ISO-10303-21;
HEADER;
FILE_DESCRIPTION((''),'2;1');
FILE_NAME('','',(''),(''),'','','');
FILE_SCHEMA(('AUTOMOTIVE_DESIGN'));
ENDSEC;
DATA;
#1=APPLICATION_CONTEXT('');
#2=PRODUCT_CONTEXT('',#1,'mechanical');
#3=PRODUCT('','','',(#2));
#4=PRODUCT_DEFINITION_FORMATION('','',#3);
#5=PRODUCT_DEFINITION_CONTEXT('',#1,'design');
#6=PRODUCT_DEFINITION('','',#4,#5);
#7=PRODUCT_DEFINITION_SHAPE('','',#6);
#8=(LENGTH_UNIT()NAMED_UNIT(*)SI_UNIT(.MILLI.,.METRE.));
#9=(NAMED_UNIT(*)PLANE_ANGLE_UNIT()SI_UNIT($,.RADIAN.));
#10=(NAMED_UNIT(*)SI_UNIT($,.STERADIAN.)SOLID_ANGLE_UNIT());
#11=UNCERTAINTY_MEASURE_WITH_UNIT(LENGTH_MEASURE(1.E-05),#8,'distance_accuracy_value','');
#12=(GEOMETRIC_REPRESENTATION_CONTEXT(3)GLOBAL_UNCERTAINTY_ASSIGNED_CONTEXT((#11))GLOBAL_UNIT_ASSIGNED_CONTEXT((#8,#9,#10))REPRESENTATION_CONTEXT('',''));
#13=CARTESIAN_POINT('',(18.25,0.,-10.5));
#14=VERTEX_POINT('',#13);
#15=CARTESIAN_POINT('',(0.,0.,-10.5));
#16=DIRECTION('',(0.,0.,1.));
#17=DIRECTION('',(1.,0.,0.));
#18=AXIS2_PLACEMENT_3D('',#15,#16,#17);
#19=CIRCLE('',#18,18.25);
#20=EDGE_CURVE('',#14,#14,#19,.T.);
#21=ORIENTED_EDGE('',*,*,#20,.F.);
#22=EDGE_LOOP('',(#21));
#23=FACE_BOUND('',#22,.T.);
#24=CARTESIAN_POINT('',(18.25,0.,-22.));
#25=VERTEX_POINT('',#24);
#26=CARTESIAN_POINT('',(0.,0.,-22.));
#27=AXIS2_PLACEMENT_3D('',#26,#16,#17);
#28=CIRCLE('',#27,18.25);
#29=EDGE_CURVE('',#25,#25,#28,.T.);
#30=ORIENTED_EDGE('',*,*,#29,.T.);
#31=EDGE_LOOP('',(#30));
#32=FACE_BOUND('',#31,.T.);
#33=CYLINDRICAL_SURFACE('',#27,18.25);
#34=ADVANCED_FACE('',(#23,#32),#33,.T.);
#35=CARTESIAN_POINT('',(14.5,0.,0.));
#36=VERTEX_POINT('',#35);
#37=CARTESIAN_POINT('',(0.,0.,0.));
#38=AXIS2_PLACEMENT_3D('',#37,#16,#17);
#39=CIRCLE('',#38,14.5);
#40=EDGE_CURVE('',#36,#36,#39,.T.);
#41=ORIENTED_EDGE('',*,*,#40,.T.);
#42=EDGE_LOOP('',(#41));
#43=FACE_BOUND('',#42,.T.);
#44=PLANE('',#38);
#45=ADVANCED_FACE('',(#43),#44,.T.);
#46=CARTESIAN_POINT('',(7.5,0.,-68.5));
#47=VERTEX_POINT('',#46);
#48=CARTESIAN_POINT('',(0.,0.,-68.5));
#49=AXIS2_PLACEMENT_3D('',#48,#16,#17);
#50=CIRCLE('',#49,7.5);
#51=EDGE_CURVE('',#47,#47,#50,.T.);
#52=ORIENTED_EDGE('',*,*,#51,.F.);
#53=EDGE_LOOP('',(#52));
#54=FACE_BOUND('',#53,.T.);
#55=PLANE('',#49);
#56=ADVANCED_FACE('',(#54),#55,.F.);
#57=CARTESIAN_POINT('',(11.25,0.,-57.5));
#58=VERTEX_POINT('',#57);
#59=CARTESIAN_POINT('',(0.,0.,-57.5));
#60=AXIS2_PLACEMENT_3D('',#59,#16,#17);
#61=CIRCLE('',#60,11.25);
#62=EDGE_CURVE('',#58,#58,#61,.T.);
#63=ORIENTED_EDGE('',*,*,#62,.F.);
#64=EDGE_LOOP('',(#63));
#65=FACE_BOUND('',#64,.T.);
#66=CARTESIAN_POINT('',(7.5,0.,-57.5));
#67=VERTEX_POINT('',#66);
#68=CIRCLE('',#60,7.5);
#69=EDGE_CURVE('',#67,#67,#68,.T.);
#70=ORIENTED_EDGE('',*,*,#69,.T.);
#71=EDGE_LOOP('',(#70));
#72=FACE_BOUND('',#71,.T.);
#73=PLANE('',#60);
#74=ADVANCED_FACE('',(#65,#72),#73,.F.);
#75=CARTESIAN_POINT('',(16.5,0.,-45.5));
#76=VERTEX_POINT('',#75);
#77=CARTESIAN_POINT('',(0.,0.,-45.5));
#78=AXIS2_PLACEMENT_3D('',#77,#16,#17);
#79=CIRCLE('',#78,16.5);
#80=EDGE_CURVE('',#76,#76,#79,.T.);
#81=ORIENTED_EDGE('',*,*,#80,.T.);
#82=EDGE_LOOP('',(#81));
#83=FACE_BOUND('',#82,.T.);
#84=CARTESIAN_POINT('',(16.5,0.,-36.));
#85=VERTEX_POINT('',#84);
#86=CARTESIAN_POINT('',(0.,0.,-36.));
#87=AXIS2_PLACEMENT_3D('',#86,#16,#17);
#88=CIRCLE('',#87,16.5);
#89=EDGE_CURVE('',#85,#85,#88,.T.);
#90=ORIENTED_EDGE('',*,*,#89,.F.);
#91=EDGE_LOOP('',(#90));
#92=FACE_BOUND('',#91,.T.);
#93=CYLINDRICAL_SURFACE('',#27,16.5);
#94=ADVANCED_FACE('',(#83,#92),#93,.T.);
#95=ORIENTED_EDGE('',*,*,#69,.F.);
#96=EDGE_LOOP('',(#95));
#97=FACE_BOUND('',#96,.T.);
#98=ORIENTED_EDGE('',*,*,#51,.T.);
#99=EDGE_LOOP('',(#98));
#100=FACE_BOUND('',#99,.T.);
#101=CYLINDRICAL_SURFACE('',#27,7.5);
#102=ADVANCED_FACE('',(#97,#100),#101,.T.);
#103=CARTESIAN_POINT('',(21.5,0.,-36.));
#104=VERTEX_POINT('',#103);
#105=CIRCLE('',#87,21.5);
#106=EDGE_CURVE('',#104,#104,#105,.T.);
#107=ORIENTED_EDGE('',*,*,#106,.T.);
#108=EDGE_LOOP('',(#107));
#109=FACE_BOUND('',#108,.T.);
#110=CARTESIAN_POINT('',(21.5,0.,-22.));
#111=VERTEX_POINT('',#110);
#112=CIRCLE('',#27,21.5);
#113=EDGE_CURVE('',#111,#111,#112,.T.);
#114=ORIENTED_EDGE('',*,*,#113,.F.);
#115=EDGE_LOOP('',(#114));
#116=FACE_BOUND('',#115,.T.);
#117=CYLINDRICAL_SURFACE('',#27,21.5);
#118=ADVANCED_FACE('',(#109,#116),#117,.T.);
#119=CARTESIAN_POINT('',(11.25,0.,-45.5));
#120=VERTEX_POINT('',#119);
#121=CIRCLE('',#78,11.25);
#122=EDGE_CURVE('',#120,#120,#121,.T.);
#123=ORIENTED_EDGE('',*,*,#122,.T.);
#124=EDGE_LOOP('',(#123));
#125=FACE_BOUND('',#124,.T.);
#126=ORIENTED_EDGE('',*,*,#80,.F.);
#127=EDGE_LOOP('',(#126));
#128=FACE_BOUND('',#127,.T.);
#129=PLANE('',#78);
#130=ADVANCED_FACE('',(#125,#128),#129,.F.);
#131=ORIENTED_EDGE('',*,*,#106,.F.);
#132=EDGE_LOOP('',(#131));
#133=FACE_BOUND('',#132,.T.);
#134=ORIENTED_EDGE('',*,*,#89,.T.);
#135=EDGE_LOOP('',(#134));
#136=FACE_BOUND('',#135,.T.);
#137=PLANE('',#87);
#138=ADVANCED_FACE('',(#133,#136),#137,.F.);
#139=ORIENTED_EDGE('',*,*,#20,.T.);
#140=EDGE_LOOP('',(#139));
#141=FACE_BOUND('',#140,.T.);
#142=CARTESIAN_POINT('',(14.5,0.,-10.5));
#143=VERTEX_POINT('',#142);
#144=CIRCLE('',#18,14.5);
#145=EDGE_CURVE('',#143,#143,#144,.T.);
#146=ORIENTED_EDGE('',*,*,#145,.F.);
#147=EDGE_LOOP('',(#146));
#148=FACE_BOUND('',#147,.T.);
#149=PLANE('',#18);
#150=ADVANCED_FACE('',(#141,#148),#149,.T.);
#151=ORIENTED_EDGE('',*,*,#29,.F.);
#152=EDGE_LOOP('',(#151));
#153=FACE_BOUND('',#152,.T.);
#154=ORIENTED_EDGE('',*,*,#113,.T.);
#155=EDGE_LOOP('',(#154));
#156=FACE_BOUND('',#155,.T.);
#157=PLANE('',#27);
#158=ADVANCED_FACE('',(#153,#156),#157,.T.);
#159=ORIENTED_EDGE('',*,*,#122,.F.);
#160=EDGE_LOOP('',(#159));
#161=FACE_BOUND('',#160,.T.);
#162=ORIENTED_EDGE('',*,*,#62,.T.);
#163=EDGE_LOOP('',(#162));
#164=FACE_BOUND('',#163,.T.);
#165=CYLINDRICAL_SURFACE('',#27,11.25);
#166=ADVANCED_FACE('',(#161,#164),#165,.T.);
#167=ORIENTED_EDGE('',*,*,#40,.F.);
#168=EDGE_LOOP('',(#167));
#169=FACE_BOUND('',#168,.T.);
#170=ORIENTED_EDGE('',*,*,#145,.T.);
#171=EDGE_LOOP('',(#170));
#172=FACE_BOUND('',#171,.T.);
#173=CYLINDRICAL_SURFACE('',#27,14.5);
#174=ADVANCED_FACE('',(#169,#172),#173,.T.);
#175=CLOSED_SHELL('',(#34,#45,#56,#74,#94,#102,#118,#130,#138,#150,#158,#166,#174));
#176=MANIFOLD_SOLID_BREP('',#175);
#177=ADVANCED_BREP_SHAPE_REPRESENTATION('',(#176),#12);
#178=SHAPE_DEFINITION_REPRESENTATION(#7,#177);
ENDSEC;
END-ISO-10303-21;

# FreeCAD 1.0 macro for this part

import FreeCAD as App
import Part
import Sketcher
from FreeCAD import Vector


def add_polygon(sketch, points):
    """Adds a closed chain of lines whose ends are joined by coincident constraints."""
    first, n = sketch.GeometryCount, len(points)
    for a, b in zip(points, points[1:] + points[:1]):
        sketch.addGeometry(Part.LineSegment(App.Vector(*a, 0), App.Vector(*b, 0)), False)
    for i in range(n):
        sketch.addConstraint(Sketcher.Constraint("Coincident", first + i, 2, first + (i + 1) % n, 1))

doc = App.newDocument("Part")
body = doc.addObject("PartDesign::Body", "Body")

sketch1 = body.newObject("Sketcher::SketchObject", "Sketch")
sketch1.AttachmentSupport = (doc.getObject("YZ_Plane"), [""])
sketch1.MapMode = "FlatFace"
add_polygon(sketch1, [(14.5, 0), (0, 0), (0, -68.5), (7.5, -68.5), (7.5, -57.5), (11.2, -57.5), (11.2, -45.5), (16.5, -45.5), (16.5, -36), (21.5, -36), (21.5, -22), (18.2, -22), (18.2, -10.5), (14.5, -10.5)])
sketch1.addConstraint(Sketcher.Constraint("Horizontal", 0))
sketch1.addConstraint(Sketcher.Constraint("Vertical", 1))
sketch1.addConstraint(Sketcher.Constraint("Horizontal", 2))
sketch1.addConstraint(Sketcher.Constraint("Vertical", 3))
sketch1.addConstraint(Sketcher.Constraint("Horizontal", 4))
sketch1.addConstraint(Sketcher.Constraint("Vertical", 5))
sketch1.addConstraint(Sketcher.Constraint("Horizontal", 6))
sketch1.addConstraint(Sketcher.Constraint("Vertical", 7))
sketch1.addConstraint(Sketcher.Constraint("Horizontal", 8))
sketch1.addConstraint(Sketcher.Constraint("Vertical", 9))
sketch1.addConstraint(Sketcher.Constraint("Horizontal", 10))
sketch1.addConstraint(Sketcher.Constraint("Vertical", 11))
sketch1.addConstraint(Sketcher.Constraint("Horizontal", 12))
sketch1.addConstraint(Sketcher.Constraint("Vertical", 13))
sketch1.addConstraint(Sketcher.Constraint("Coincident", 0, 2, -1, 1))
sketch1.addConstraint(Sketcher.Constraint("Equal", 4, 12))
sketch1.addConstraint(Sketcher.Constraint("DistanceX", 8, 1, 8, 2, 5.0))
sketch1.addConstraint(Sketcher.Constraint("DistanceY", 3, 1, 3, 2, 11.0))
sketch1.addConstraint(Sketcher.Constraint("DistanceY", 5, 1, 5, 2, 12.0))
sketch1.addConstraint(Sketcher.Constraint("DistanceY", 9, 1, 9, 2, 14.0))
sketch1.addConstraint(Sketcher.Constraint("DistanceX", 0, 2, 0, 1, 14.5))
sketch1.addConstraint(Sketcher.Constraint("DistanceX", 2, 1, 2, 2, 7.5))
sketch1.addConstraint(Sketcher.Constraint("DistanceY", 1, 2, 1, 1, 68.5))
sketch1.addConstraint(Sketcher.Constraint("DistanceY", 7, 1, 7, 2, 9.5))
sketch1.addConstraint(Sketcher.Constraint("DistanceY", 11, 1, 11, 2, 11.5))
sketch1.addConstraint(Sketcher.Constraint("DistanceX", 3, 2, 6, 2, 9.0))
sketch1.addConstraint(Sketcher.Constraint("DistanceX", 4, 1, 4, 2, 3.75))
revolution = body.newObject("PartDesign::Revolution", "Revolution")
revolution.Profile = sketch1
revolution.ReferenceAxis = (sketch1, ["V_Axis"])
revolution.Angle = 360

doc.recompute()
